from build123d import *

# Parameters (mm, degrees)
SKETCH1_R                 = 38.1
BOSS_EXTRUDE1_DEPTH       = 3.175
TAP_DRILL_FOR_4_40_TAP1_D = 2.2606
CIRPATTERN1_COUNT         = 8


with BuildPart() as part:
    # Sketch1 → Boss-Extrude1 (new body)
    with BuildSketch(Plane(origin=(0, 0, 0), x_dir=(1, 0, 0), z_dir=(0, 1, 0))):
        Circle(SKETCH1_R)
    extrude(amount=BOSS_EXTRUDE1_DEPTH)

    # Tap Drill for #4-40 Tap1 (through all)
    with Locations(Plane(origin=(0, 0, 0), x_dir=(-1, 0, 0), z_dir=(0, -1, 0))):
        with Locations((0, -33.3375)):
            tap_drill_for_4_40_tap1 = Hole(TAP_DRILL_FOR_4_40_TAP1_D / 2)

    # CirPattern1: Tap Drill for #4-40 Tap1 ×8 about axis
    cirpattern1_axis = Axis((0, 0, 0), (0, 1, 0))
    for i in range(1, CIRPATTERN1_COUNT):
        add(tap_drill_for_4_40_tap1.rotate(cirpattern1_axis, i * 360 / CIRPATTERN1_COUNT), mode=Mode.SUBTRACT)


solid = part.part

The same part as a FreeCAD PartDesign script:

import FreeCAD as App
import Part
import Sketcher

V = App.Vector
Q = App.Units.Quantity

doc = App.newDocument("Part")
body = doc.addObject("PartDesign::Body", "Body")

sketch1 = body.newObject("Sketcher::SketchObject", "Sketch")
sketch1.AttachmentSupport = (doc.getObject("XZ_Plane"), [""])
sketch1.MapMode = "FlatFace"
sketch1.addGeometry(Part.Circle(V(0, 0, 0), V(0, 0, 1), 38), False)
sketch1.addConstraint(Sketcher.Constraint("Coincident", 0, 3, -1, 1))
sketch1.addConstraint(Sketcher.Constraint("Diameter", 0, Q("3 in")))
pad1 = body.newObject("PartDesign::Pad", "Pad")
pad1.Profile = sketch1
pad1.Length = Q("0.125 in")
pad1.Reversed = True

sketch2 = body.newObject("Sketcher::SketchObject", "Sketch001")
sketch2.AttachmentSupport = (doc.getObject("XZ_Plane"), [""])
sketch2.MapMode = "FlatFace"
sketch2.addGeometry(Part.Circle(V(0, 33.3, 0), V(0, 0, 1), 1.1), False)
sketch2.addConstraint(Sketcher.Constraint("PointOnObject", 0, 3, -2))
sketch2.addConstraint(Sketcher.Constraint("Diameter", 0, Q("0.089 in")))
sketch2.addConstraint(Sketcher.Constraint("DistanceY", -1, 1, 0, 3, Q("1.3125 in")))
doc.recompute()
hole = body.newObject("PartDesign::Hole", "Hole")
hole.Profile = sketch2
hole.ThreadType = "None"
hole.Diameter = Q("0.089 in")
hole.DepthType = "ThroughAll"
doc.recompute()

polarpattern = body.newObject("PartDesign::PolarPattern", "PolarPattern")
polarpattern.Originals = [hole]
polarpattern.Axis = (doc.getObject("Y_Axis"), [""])
polarpattern.Angle = 360
polarpattern.Occurrences = 8
body.Tip = polarpattern

doc.recompute()
